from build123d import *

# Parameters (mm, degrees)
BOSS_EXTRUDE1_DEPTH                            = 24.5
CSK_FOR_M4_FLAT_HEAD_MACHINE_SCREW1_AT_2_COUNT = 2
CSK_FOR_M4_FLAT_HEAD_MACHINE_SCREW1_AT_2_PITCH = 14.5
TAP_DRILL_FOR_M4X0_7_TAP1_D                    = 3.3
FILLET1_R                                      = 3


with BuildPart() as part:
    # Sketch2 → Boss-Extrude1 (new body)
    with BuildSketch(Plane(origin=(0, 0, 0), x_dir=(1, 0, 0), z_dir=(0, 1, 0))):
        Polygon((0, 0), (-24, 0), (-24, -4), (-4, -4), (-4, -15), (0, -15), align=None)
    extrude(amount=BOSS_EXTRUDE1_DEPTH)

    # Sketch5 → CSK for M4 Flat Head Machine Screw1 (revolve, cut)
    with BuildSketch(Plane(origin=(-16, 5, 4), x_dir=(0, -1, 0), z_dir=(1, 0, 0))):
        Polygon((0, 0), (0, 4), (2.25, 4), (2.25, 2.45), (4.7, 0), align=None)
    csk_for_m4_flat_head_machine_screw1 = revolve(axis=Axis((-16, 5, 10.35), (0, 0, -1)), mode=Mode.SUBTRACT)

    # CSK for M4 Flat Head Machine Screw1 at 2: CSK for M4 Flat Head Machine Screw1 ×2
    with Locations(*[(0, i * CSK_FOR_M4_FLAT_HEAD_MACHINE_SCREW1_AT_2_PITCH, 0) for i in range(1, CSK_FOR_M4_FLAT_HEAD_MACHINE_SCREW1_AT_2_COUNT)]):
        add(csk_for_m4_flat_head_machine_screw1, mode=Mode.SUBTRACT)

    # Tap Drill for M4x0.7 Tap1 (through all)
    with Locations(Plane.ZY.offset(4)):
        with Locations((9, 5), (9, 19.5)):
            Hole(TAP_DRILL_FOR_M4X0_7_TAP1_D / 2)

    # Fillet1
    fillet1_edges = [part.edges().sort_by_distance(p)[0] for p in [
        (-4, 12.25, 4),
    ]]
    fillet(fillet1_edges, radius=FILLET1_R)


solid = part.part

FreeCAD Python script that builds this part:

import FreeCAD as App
import Part
import Sketcher
from FreeCAD import Vector
Q = App.Units.Quantity


def edges_at(feature, points):
    """Names of the edges that pass closest to the given points."""
    edges = feature.Shape.Edges
    near = lambda p: min(range(len(edges)), key=lambda i: edges[i].distToShape(Part.Vertex(*p))[0])
    return sorted({f"Edge{near(p) + 1}" for p in points})

doc = App.newDocument("Part")
body = doc.addObject("PartDesign::Body", "Body")

# Sketch on XZ plane
sketch1 = body.newObject("Sketcher::SketchObject", "Sketch")
sketch1.AttachmentSupport = (doc.getObject("XZ_Plane"), [""])
sketch1.MapMode = "FlatFace"
sketch1.addGeometry(Part.LineSegment(Vector(0, 0, 0), Vector(-24, 0, 0)), False)
sketch1.addGeometry(Part.LineSegment(Vector(-24, 0, 0), Vector(-24, 4, 0)), False)
sketch1.addGeometry(Part.LineSegment(Vector(-24, 4, 0), Vector(-4, 4, 0)), False)
sketch1.addGeometry(Part.LineSegment(Vector(-4, 4, 0), Vector(-4, 15, 0)), False)
sketch1.addGeometry(Part.LineSegment(Vector(-4, 15, 0), Vector(0, 15, 0)), False)
sketch1.addGeometry(Part.LineSegment(Vector(0, 15, 0), Vector(0, 0, 0)), False)
sketch1.addConstraint(Sketcher.Constraint("Coincident", 0, 2, 1, 1))
sketch1.addConstraint(Sketcher.Constraint("Coincident", 1, 2, 2, 1))
sketch1.addConstraint(Sketcher.Constraint("Coincident", 2, 2, 3, 1))
sketch1.addConstraint(Sketcher.Constraint("Coincident", 3, 2, 4, 1))
sketch1.addConstraint(Sketcher.Constraint("Coincident", 4, 2, 5, 1))
sketch1.addConstraint(Sketcher.Constraint("Coincident", 5, 2, 0, 1))
sketch1.addConstraint(Sketcher.Constraint("Horizontal", 0))
sketch1.addConstraint(Sketcher.Constraint("Vertical", 1))
sketch1.addConstraint(Sketcher.Constraint("Horizontal", 2))
sketch1.addConstraint(Sketcher.Constraint("Vertical", 3))
sketch1.addConstraint(Sketcher.Constraint("Horizontal", 4))
sketch1.addConstraint(Sketcher.Constraint("Vertical", 5))
sketch1.addConstraint(Sketcher.Constraint("Coincident", 5, 2, -1, 1))
sketch1.addConstraint(Sketcher.Constraint("Equal", 4, 1))
sketch1.addConstraint(Sketcher.Constraint("DistanceX", 0, 2, 0, 1, 24.0))
sketch1.addConstraint(Sketcher.Constraint("DistanceX", 2, 1, 2, 2, 20.0))
sketch1.addConstraint(Sketcher.Constraint("DistanceY", 3, 1, 3, 2, 11.0))
pad1 = body.newObject("PartDesign::Pad", "Pad")
pad1.Profile = sketch1
pad1.Length = 24.5
pad1.Reversed = True

# Sketch on YZ plane
sketch2 = body.newObject("Sketcher::SketchObject", "Sketch001")
sketch2.AttachmentSupport = (doc.getObject("YZ_Plane"), [""])
sketch2.MapMode = "FlatFace"
sketch2.AttachmentOffset = App.Placement(Vector(0, 0, -16), App.Rotation())
sketch2.addGeometry(Part.LineSegment(Vector(5, 0, 0), Vector(5, 4, 0)), False)
sketch2.addGeometry(Part.LineSegment(Vector(5, 4, 0), Vector(0.3, 4, 0)), False)
sketch2.addGeometry(Part.LineSegment(Vector(0.3, 4, 0), Vector(2.75, 1.55, 0)), False)
sketch2.addGeometry(Part.LineSegment(Vector(2.75, 1.55, 0), Vector(2.75, 0, 0)), False)
sketch2.addGeometry(Part.LineSegment(Vector(2.75, 0, 0), Vector(5, 0, 0)), False)
sketch2.addGeometry(Part.LineSegment(Vector(5, 4, 0), Vector(5, 0, 0)), True)  # axis
sketch2.addConstraint(Sketcher.Constraint("Coincident", 0, 2, 1, 1))
sketch2.addConstraint(Sketcher.Constraint("Coincident", 1, 2, 2, 1))
sketch2.addConstraint(Sketcher.Constraint("Coincident", 2, 2, 3, 1))
sketch2.addConstraint(Sketcher.Constraint("Coincident", 3, 2, 4, 1))
sketch2.addConstraint(Sketcher.Constraint("Coincident", 4, 2, 0, 1))
sketch2.addConstraint(Sketcher.Constraint("Vertical", 0))
sketch2.addConstraint(Sketcher.Constraint("Horizontal", 1))
sketch2.addConstraint(Sketcher.Constraint("Vertical", 3))
sketch2.addConstraint(Sketcher.Constraint("Horizontal", 4))
sketch2.addConstraint(Sketcher.Constraint("Vertical", 5))
sketch2.addConstraint(Sketcher.Constraint("Coincident", 5, 1, 0, 2))
sketch2.addConstraint(Sketcher.Constraint("PointOnObject", 3, 2, -1))
sketch2.addConstraint(Sketcher.Constraint("PointOnObject", 5, 2, -1))
sketch2.addConstraint(Sketcher.Constraint("DistanceY", 0, 1, 0, 2, 4.0))
sketch2.addConstraint(Sketcher.Constraint("Angle", 2, Q("-45 deg")))
sketch2.addConstraint(Sketcher.Constraint("DistanceX", 1, 2, 1, 1, 4.7))
sketch2.addConstraint(Sketcher.Constraint("DistanceX", -1, 1, 0, 2, 5.0))
sketch2.addConstraint(Sketcher.Constraint("DistanceX", 4, 1, 4, 2, 2.25))
groove = body.newObject("PartDesign::Groove", "Groove")
groove.Profile = sketch2
groove.ReferenceAxis = (sketch2, ["Axis0"])
groove.Angle = 360
doc.recompute()

linearpattern = body.newObject("PartDesign::LinearPattern", "LinearPattern")
linearpattern.Originals = [groove]
linearpattern.Direction = (doc.getObject("Y_Axis"), [""])
linearpattern.Mode = "offset"
linearpattern.Offset = 14.5
linearpattern.Occurrences = 2
body.Tip = linearpattern

# Sketch on YZ plane
sketch3 = body.newObject("Sketcher::SketchObject", "Sketch002")
sketch3.AttachmentSupport = (doc.getObject("YZ_Plane"), [""])
sketch3.MapMode = "FlatFace"
sketch3.AttachmentOffset = App.Placement(Vector(0, 0, -4), App.Rotation())
sketch3.addGeometry(Part.Circle(Vector(5, 9, 0), Vector(0, 0, 1), 1.65), False)
sketch3.addGeometry(Part.Circle(Vector(19.5, 9, 0), Vector(0, 0, 1), 1.65), False)
sketch3.addConstraint(Sketcher.Constraint("Equal", 0, 1))
sketch3.addConstraint(Sketcher.Constraint("Horizontal", 0, 3, 1, 3))
sketch3.addConstraint(Sketcher.Constraint("Diameter", 0, 3.3))
sketch3.addConstraint(Sketcher.Constraint("DistanceX", -1, 1, 0, 3, 5.0))
sketch3.addConstraint(Sketcher.Constraint("DistanceY", -1, 1, 0, 3, 9.0))
sketch3.addConstraint(Sketcher.Constraint("DistanceX", -1, 1, 1, 3, 19.5))
doc.recompute()
hole = body.newObject("PartDesign::Hole", "Hole")
hole.Profile = sketch3
hole.ThreadType = "None"
hole.Diameter = 3.3
hole.DepthType = "ThroughAll"
hole.Reversed = True
doc.recompute()

fillet = body.newObject("PartDesign::Fillet", "Fillet")
fillet.Base = (hole, edges_at(hole, [(-4, 12.25, 4)]))
fillet.Radius = 3

doc.recompute()
